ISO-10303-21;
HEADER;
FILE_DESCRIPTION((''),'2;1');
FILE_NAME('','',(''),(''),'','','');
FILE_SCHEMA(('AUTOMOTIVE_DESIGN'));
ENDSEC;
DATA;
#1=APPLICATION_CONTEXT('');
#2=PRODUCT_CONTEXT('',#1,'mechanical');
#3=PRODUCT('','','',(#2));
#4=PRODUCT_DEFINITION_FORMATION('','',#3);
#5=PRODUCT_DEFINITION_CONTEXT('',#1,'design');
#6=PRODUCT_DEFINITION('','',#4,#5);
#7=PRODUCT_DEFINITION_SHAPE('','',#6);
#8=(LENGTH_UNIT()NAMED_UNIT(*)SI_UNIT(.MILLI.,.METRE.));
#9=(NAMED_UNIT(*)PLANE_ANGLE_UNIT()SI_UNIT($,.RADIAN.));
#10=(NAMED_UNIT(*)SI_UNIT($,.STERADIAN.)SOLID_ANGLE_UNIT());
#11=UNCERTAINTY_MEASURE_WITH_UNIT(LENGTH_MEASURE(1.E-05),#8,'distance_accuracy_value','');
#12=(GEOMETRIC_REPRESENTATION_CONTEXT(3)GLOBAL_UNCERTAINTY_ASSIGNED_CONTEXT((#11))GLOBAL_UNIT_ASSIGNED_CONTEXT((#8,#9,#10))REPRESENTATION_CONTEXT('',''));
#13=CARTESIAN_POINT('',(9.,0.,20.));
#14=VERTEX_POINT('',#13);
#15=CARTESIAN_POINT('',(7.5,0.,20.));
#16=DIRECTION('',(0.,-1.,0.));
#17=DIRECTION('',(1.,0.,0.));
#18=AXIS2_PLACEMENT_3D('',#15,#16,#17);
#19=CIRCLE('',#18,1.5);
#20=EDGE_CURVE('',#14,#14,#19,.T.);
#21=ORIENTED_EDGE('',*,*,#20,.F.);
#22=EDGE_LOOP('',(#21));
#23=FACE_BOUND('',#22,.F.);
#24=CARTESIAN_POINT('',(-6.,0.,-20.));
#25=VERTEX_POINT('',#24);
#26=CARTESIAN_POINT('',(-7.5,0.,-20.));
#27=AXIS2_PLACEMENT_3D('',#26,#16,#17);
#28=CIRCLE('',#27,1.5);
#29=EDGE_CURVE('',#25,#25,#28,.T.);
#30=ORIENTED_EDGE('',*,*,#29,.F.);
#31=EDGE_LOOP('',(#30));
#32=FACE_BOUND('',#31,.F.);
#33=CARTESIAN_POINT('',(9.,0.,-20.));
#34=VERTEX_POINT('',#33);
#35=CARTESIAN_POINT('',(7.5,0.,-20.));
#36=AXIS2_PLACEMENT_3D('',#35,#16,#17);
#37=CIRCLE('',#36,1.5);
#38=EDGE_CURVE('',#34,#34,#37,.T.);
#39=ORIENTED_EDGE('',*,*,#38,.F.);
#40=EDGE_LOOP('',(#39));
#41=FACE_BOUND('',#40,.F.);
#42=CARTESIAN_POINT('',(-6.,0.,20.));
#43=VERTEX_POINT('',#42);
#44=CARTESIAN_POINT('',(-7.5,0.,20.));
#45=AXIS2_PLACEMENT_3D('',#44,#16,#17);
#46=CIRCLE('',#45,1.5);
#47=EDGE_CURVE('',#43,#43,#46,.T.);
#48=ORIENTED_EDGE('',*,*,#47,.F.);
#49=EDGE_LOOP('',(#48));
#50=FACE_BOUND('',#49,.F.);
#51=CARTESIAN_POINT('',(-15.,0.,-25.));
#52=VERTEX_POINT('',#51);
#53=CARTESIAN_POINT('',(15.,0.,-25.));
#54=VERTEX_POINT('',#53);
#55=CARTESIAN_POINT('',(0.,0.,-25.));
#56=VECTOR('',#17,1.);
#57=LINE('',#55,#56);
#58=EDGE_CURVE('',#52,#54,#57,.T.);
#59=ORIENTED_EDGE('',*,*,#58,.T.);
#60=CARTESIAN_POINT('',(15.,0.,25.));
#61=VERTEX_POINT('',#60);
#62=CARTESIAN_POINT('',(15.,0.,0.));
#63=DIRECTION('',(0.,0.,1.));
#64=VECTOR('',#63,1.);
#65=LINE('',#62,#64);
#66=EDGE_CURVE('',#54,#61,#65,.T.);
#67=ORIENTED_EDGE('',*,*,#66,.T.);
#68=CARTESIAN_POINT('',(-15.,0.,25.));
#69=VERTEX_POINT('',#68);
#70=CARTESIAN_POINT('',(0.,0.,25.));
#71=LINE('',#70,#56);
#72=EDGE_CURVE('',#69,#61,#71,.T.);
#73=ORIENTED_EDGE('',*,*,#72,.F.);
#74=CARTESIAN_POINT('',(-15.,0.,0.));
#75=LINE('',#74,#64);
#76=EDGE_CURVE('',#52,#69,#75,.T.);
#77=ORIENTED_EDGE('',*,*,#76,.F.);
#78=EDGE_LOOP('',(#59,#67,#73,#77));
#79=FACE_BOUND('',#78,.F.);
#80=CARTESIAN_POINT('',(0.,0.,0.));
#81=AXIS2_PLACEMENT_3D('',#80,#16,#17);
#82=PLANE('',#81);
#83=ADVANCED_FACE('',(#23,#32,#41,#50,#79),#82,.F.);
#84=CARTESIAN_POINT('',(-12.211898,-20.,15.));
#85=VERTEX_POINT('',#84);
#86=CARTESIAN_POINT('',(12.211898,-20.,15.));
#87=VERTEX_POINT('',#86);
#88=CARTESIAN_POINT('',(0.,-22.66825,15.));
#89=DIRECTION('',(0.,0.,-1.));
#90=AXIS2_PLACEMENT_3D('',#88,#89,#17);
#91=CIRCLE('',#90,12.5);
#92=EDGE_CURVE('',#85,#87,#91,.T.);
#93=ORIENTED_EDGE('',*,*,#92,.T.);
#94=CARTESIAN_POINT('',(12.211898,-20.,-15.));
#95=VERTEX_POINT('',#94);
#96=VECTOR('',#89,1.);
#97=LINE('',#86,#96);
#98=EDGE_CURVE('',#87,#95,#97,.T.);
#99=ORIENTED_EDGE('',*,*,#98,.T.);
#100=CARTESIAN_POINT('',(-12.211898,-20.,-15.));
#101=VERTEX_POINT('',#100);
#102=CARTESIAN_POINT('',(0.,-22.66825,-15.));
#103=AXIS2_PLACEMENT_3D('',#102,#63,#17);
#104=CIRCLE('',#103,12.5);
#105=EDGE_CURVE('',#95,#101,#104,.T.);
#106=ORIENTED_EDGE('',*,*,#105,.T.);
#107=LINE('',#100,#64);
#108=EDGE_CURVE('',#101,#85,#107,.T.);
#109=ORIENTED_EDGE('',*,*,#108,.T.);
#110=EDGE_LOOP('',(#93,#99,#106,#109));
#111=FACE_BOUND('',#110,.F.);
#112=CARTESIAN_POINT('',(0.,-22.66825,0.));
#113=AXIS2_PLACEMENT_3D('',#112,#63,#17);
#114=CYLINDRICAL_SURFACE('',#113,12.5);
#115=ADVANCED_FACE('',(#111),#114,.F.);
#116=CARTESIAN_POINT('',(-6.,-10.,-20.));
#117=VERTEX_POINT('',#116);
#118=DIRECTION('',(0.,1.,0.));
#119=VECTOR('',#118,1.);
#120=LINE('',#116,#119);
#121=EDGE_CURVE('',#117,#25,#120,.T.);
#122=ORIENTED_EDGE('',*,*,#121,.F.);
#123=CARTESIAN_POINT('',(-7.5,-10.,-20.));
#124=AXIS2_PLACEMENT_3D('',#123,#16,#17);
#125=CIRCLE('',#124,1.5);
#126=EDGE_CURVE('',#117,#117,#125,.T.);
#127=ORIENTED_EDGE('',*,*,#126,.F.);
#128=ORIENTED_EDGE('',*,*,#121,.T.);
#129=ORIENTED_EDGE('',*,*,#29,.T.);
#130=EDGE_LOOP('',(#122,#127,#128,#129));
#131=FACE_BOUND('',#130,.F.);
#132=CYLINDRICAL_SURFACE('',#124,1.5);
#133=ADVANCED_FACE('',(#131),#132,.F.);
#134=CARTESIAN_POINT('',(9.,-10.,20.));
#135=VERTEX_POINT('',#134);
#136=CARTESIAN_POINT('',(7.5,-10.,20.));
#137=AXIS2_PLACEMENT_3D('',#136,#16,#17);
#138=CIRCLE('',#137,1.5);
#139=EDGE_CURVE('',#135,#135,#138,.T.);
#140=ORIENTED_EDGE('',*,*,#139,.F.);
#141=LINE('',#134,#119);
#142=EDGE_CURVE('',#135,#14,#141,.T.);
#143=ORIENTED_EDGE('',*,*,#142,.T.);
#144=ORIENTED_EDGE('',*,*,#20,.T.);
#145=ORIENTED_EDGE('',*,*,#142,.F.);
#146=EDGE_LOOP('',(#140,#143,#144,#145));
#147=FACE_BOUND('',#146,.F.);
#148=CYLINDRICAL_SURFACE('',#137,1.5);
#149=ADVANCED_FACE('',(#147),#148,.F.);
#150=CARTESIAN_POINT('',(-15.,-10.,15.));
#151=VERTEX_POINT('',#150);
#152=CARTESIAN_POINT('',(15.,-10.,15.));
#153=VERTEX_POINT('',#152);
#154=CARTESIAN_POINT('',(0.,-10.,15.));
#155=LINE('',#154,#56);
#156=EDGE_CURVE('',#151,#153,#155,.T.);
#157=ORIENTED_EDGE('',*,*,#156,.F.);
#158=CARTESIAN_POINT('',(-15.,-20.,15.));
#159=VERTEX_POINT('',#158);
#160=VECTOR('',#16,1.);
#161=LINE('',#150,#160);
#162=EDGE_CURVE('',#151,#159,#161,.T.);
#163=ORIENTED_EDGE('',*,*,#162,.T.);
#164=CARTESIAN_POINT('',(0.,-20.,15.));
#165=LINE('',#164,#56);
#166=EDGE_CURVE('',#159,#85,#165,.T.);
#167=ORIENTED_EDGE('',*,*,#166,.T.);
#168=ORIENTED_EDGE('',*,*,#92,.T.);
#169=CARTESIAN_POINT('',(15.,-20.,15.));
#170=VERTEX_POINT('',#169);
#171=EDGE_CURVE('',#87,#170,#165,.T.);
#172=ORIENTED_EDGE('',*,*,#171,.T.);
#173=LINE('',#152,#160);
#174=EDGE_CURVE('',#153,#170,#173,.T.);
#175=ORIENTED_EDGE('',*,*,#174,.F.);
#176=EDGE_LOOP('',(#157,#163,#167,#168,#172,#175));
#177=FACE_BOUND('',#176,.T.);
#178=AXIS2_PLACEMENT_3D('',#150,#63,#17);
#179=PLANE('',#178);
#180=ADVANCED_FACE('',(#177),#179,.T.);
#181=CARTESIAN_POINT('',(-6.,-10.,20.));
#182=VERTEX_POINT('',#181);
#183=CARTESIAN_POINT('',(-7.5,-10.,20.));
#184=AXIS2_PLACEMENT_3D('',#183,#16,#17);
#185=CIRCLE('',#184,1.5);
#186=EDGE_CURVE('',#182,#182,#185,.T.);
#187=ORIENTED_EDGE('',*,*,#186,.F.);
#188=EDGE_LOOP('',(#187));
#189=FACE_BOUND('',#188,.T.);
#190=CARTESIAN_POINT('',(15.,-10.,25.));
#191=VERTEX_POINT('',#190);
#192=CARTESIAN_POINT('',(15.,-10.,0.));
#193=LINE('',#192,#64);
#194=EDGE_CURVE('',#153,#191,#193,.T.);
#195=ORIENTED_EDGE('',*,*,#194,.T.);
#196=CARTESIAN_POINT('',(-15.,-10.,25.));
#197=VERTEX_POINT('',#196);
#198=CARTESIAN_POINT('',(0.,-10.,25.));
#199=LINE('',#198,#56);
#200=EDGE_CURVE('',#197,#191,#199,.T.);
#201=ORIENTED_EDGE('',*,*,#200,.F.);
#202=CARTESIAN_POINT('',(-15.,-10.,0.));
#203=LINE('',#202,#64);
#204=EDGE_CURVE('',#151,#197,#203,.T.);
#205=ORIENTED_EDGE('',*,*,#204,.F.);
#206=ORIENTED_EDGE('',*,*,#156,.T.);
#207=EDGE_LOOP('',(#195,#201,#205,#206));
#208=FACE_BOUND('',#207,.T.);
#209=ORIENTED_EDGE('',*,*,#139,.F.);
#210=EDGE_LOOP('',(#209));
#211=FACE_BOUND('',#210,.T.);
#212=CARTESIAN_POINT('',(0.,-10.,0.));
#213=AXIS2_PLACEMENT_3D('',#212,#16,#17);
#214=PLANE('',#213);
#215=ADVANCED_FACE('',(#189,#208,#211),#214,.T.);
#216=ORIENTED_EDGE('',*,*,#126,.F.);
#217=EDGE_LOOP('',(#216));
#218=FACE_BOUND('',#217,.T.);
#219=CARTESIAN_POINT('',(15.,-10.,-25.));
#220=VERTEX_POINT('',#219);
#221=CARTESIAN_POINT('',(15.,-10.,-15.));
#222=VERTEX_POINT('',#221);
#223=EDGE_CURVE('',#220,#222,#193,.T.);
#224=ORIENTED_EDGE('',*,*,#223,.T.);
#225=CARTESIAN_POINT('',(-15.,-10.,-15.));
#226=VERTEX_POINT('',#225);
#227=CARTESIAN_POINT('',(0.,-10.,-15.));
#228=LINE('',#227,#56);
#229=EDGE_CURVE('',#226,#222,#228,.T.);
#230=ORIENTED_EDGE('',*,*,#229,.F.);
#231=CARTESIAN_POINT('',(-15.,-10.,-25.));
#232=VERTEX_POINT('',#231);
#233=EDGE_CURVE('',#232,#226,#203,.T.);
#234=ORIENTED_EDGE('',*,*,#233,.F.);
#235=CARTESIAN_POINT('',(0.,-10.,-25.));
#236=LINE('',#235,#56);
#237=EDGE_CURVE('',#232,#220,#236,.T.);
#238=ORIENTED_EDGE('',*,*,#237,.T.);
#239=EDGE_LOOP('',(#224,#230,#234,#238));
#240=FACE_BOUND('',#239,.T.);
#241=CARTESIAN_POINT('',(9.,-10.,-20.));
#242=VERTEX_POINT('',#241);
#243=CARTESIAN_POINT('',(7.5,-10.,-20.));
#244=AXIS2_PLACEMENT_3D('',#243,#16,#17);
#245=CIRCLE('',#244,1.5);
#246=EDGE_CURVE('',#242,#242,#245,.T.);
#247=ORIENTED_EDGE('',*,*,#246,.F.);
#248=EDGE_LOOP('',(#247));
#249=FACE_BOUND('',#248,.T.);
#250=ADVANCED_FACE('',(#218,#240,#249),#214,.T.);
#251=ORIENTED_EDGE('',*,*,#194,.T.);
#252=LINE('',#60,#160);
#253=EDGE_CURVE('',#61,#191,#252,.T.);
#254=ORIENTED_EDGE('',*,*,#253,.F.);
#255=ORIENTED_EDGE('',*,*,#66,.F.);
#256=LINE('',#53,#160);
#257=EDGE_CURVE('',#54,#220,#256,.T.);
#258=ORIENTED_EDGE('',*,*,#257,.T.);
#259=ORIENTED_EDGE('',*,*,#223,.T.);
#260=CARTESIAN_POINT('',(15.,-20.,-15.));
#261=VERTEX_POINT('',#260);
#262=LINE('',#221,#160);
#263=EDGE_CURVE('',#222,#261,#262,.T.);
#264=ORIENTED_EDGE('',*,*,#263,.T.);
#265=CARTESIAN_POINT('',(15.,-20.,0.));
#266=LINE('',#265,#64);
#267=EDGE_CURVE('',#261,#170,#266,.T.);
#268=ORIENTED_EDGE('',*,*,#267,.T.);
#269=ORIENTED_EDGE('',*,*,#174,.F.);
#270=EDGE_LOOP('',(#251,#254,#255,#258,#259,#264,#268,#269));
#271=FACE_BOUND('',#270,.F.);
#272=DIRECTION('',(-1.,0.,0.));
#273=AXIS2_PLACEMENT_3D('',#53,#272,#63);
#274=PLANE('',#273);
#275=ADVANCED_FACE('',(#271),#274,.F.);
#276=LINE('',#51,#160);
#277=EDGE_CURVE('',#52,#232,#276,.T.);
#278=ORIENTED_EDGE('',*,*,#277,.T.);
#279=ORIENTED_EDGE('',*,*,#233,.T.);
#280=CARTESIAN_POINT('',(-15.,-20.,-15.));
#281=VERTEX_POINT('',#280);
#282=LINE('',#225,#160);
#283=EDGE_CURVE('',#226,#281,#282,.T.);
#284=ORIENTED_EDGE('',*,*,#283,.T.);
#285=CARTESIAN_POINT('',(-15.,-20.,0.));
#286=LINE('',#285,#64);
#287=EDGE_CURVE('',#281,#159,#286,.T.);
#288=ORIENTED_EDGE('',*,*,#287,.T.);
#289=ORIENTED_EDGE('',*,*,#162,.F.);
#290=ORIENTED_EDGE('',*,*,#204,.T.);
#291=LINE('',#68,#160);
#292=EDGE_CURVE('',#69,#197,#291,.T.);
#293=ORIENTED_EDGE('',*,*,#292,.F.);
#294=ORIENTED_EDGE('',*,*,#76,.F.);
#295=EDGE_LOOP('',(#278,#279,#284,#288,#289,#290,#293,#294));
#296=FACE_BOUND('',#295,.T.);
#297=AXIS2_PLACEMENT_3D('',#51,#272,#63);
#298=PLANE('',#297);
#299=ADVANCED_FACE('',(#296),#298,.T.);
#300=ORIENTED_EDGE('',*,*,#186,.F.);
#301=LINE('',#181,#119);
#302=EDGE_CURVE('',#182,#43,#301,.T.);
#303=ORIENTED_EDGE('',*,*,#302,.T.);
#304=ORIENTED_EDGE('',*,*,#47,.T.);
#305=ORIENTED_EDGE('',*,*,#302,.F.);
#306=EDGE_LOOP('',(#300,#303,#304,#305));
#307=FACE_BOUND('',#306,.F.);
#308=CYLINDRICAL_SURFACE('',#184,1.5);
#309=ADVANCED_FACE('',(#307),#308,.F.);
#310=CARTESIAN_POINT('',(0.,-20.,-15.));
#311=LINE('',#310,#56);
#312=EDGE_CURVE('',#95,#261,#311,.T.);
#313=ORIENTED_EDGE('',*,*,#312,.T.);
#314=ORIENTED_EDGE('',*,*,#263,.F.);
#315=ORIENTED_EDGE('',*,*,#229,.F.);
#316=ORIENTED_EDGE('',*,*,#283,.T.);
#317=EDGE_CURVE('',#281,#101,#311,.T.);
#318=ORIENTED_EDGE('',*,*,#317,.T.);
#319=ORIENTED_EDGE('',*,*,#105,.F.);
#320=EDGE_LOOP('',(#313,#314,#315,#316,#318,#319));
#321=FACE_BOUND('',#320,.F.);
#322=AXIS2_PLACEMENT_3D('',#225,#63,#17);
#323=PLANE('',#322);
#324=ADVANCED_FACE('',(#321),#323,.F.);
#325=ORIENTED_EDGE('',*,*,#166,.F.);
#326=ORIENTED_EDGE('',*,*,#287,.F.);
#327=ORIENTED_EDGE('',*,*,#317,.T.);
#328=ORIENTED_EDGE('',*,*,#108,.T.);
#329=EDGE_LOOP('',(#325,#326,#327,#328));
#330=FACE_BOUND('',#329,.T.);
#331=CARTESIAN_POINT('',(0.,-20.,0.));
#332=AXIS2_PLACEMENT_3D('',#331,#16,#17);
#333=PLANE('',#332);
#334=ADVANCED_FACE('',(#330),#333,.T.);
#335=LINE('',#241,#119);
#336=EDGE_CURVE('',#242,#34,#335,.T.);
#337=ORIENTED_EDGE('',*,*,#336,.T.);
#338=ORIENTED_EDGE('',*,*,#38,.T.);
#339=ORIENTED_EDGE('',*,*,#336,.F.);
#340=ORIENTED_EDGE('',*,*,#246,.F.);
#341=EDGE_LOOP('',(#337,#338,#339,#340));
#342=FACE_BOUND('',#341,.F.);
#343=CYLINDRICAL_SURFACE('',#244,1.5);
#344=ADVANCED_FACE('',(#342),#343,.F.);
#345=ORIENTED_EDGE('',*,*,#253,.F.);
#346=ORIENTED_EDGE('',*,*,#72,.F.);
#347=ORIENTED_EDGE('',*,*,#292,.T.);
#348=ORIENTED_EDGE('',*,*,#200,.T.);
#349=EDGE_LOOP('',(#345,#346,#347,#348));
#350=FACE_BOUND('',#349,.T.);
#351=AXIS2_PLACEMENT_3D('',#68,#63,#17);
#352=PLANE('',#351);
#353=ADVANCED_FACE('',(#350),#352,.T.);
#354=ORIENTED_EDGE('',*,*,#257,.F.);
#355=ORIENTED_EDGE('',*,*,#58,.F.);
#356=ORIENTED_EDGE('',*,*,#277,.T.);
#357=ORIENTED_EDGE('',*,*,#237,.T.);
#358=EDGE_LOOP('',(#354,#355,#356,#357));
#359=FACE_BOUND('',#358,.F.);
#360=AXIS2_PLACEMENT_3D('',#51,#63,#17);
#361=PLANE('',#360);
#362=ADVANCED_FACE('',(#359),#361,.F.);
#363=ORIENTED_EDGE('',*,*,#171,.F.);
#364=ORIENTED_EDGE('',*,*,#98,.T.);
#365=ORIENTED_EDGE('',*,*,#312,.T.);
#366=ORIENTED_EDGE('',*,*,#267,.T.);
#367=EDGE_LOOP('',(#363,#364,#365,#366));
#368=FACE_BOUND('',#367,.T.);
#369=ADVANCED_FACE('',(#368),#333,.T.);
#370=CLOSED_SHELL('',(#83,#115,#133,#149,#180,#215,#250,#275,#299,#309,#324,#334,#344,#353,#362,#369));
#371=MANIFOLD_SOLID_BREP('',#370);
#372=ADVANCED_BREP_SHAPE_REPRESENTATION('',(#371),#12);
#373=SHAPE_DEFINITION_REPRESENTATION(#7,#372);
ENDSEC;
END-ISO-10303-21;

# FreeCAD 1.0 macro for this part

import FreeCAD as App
import Part
import Sketcher

V = App.Vector
Q = App.Units.Quantity

doc = App.newDocument("Part")
body = doc.addObject("PartDesign::Body", "Body")

sketch1 = body.newObject("Sketcher::SketchObject", "Sketch")
sketch1.AttachmentSupport = (doc.getObject("XZ_Plane"), [""])
sketch1.MapMode = "FlatFace"
sketch1.addGeometry(Part.LineSegment(V(-15, 25, 0), V(-15, -25, 0)), False)
sketch1.addGeometry(Part.LineSegment(V(-15, -25, 0), V(15, -25, 0)), False)
sketch1.addGeometry(Part.LineSegment(V(15, -25, 0), V(15, 25, 0)), False)
sketch1.addGeometry(Part.LineSegment(V(15, 25, 0), V(-15, 25, 0)), False)
sketch1.addConstraint(Sketcher.Constraint("Coincident", 0, 2, 1, 1))
sketch1.addConstraint(Sketcher.Constraint("Coincident", 1, 2, 2, 1))
sketch1.addConstraint(Sketcher.Constraint("Coincident", 2, 2, 3, 1))
sketch1.addConstraint(Sketcher.Constraint("Coincident", 3, 2, 0, 1))
sketch1.addConstraint(Sketcher.Constraint("Vertical", 0))
sketch1.addConstraint(Sketcher.Constraint("Horizontal", 1))
sketch1.addConstraint(Sketcher.Constraint("Vertical", 2))
sketch1.addConstraint(Sketcher.Constraint("Horizontal", 3))
sketch1.addConstraint(Sketcher.Constraint("Symmetric", 0, 2, 2, 2, -1, 1))
sketch1.addConstraint(Sketcher.Constraint("DistanceX", 1, 1, 1, 2, Q("30 mm")))
sketch1.addConstraint(Sketcher.Constraint("DistanceY", 0, 2, 0, 1, Q("50 mm")))
pad1 = body.newObject("PartDesign::Pad", "Pad")
pad1.Profile = sketch1
pad1.Length = 10

sketch2 = body.newObject("Sketcher::SketchObject", "Sketch001")
sketch2.AttachmentSupport = (doc.getObject("XZ_Plane"), [""])
sketch2.MapMode = "FlatFace"
sketch2.AttachmentOffset = App.Placement(V(0, 0, 10), App.Rotation())
sketch2.addGeometry(Part.Circle(V(7.5, -20, 0), V(0, 0, 1), 1.5), False)
sketch2.addGeometry(Part.Circle(V(-7.5, -20, 0), V(0, 0, 1), 1.5), False)
sketch2.addGeometry(Part.Circle(V(7.5, 20, 0), V(0, 0, 1), 1.5), False)
sketch2.addGeometry(Part.Circle(V(-7.5, 20, 0), V(0, 0, 1), 1.5), False)
sketch2.addConstraint(Sketcher.Constraint("Equal", 0, 1))
sketch2.addConstraint(Sketcher.Constraint("Equal", 1, 2))
sketch2.addConstraint(Sketcher.Constraint("Equal", 2, 3))
sketch2.addConstraint(Sketcher.Constraint("Symmetric", 1, 3, 2, 3, -1, 1))
sketch2.addConstraint(Sketcher.Constraint("Symmetric", 0, 3, 3, 3, -1, 1))
sketch2.addConstraint(Sketcher.Constraint("Symmetric", 0, 3, 1, 3, -2))
sketch2.addConstraint(Sketcher.Constraint("Diameter", 0, Q("3 mm")))
sketch2.addConstraint(Sketcher.Constraint("DistanceY", 0, 3, -1, 1, Q("20 mm")))
sketch2.addConstraint(Sketcher.Constraint("DistanceX", 1, 3, 0, 3, Q("15 mm")))
pocket1 = body.newObject("PartDesign::Pocket", "Pocket")
pocket1.Profile = sketch2
pocket1.Type = "ThroughAll"

sketch3 = body.newObject("Sketcher::SketchObject", "Sketch002")
sketch3.AttachmentSupport = (doc.getObject("XZ_Plane"), [""])
sketch3.MapMode = "FlatFace"
sketch3.AttachmentOffset = App.Placement(V(0, 0, 10), App.Rotation())
sketch3.addGeometry(Part.LineSegment(V(-15, 15, 0), V(-15, -15, 0)), False)
sketch3.addGeometry(Part.LineSegment(V(-15, -15, 0), V(15, -15, 0)), False)
sketch3.addGeometry(Part.LineSegment(V(15, -15, 0), V(15, 15, 0)), False)
sketch3.addGeometry(Part.LineSegment(V(15, 15, 0), V(-15, 15, 0)), False)
sketch3.addConstraint(Sketcher.Constraint("Coincident", 0, 2, 1, 1))
sketch3.addConstraint(Sketcher.Constraint("Coincident", 1, 2, 2, 1))
sketch3.addConstraint(Sketcher.Constraint("Coincident", 2, 2, 3, 1))
sketch3.addConstraint(Sketcher.Constraint("Coincident", 3, 2, 0, 1))
sketch3.addConstraint(Sketcher.Constraint("Vertical", 0))
sketch3.addConstraint(Sketcher.Constraint("Horizontal", 1))
sketch3.addConstraint(Sketcher.Constraint("Vertical", 2))
sketch3.addConstraint(Sketcher.Constraint("Horizontal", 3))
sketch3.addConstraint(Sketcher.Constraint("Symmetric", 0, 2, 2, 2, -1, 1))
sketch3.addConstraint(Sketcher.Constraint("Equal", 3, 0))
sketch3.addConstraint(Sketcher.Constraint("DistanceX", 1, 1, 1, 2, Q("30 mm")))
pad2 = body.newObject("PartDesign::Pad", "Pad001")
pad2.Profile = sketch3
pad2.Length = 10

sketch4 = body.newObject("Sketcher::SketchObject", "Sketch003")
sketch4.AttachmentSupport = (doc.getObject("XY_Plane"), [""])
sketch4.MapMode = "FlatFace"
sketch4.addGeometry(Part.Circle(V(0, -22.66825, 0), V(0, 0, 1), 12.5), False)
sketch4.addConstraint(Sketcher.Constraint("PointOnObject", 0, 3, -2))
sketch4.addConstraint(Sketcher.Constraint("Diameter", 0, Q("25 mm")))
sketch4.addConstraint(Sketcher.Constraint("DistanceY", 0, 3, -1, 1, Q("22.66825 mm")))
pocket2 = body.newObject("PartDesign::Pocket", "Pocket001")
pocket2.Profile = sketch4
pocket2.Type = "ThroughAll"

sketch5 = body.newObject("Sketcher::SketchObject", "Sketch004")
sketch5.AttachmentSupport = (doc.getObject("XY_Plane"), [""])
sketch5.MapMode = "FlatFace"
sketch5.addGeometry(Part.Circle(V(0, -22.66825, 0), V(0, 0, 1), 12.5), False)
sketch5.addConstraint(Sketcher.Constraint("PointOnObject", 0, 3, -2))
sketch5.addConstraint(Sketcher.Constraint("Diameter", 0, Q("25 mm")))
sketch5.addConstraint(Sketcher.Constraint("DistanceY", 0, 3, -1, 1, Q("22.66825 mm")))
pocket3 = body.newObject("PartDesign::Pocket", "Pocket002")
pocket3.Profile = sketch5
pocket3.Type = "ThroughAll"
pocket3.Reversed = True

doc.recompute()
